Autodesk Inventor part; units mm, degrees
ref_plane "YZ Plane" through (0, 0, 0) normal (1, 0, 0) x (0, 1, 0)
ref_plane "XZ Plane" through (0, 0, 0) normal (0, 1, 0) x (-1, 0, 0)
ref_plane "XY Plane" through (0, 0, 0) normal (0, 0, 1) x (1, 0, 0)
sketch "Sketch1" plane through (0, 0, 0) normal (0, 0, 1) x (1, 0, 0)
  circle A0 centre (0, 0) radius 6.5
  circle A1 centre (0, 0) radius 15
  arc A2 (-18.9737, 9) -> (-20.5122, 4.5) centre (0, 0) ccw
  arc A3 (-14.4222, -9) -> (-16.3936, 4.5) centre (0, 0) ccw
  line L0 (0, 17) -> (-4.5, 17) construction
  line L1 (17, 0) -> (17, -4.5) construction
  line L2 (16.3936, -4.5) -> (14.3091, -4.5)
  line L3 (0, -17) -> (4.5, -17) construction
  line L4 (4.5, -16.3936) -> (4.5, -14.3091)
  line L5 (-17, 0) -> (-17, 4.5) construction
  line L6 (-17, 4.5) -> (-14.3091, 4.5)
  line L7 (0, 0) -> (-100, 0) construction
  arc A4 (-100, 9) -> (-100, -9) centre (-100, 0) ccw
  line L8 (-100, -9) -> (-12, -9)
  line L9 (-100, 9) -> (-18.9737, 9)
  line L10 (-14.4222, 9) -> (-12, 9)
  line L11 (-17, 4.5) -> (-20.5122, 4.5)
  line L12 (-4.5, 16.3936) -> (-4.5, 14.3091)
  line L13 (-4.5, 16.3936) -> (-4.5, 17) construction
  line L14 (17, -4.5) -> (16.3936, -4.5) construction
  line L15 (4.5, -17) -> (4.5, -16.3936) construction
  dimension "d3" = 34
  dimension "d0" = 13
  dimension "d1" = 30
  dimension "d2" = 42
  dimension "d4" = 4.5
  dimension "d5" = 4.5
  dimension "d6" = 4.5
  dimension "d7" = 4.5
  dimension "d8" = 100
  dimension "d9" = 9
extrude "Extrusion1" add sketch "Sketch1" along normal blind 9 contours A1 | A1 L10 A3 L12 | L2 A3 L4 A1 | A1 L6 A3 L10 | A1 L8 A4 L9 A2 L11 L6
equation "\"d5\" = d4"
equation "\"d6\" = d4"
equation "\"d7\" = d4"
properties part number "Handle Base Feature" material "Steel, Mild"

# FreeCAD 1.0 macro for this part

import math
import FreeCAD as App
import Part
import Sketcher
from FreeCAD import Vector

doc = App.newDocument("Part")
body = doc.addObject("PartDesign::Body", "Body")

sketch1 = body.newObject("Sketcher::SketchObject", "Sketch")
sketch1.AttachmentSupport = (doc.getObject("XY_Plane"), [""])
sketch1.MapMode = "FlatFace"
sketch1.addGeometry([
    Part.ArcOfCircle(Part.Circle(Vector(0, 0, 0), Vector(0, 0, 1), 15), math.radians(-17.457589), math.radians(107.457589)),
    Part.LineSegment(Vector(-4.5, 14.3091, 0), Vector(-4.5, 16.3936, 0)),
    Part.ArcOfCircle(Part.Circle(Vector(0, 0, 0), Vector(0, 0, 1), 16.999996), math.radians(105.349474), math.radians(164.650526)),
    Part.LineSegment(Vector(-16.3936, 4.5, 0), Vector(-20.5122, 4.5, 0)),
    Part.ArcOfCircle(Part.Circle(Vector(-0.001619, 0.000658, 0), Vector(0, 0, 1), 20.998286), math.radians(154.622836), math.radians(167.627188)),
    Part.LineSegment(Vector(-18.9737, 9, 0), Vector(-100, 9, 0)),
    Part.ArcOfCircle(Part.Circle(Vector(-100, 0, 0), Vector(0, 0, 1), 9), math.radians(90), math.radians(270)),
    Part.LineSegment(Vector(-100, -9, 0), Vector(-12, -9, 0)),
    Part.ArcOfCircle(Part.Circle(Vector(0, 0, 0), Vector(0, 0, 1), 15), math.radians(-143.130102), math.radians(-72.542411)),
    Part.LineSegment(Vector(4.5, -14.3091, 0), Vector(4.5, -16.3936, 0)),
    Part.ArcOfCircle(Part.Circle(Vector(0, 0, 0), Vector(0, 0, 1), 16.999996), math.radians(-74.650526), math.radians(-15.349474)),
    Part.LineSegment(Vector(16.3936, -4.5, 0), Vector(14.3091, -4.5, 0)),
    Part.Circle(Vector(0, 0, 0), Vector(0, 0, 1), 6.5),
], False)
sketch1.addConstraint([
    Sketcher.Constraint("Coincident", 0, 2, 1, 1),
    Sketcher.Constraint("Coincident", 1, 2, 2, 1),
    Sketcher.Constraint("Coincident", 2, 2, 3, 1),
    Sketcher.Constraint("Coincident", 3, 2, 4, 2),
    Sketcher.Constraint("Coincident", 4, 1, 5, 1),
    Sketcher.Constraint("Tangent", 5, 2, 6, 1),
    Sketcher.Constraint("Tangent", 6, 2, 7, 1),
    Sketcher.Constraint("Coincident", 7, 2, 8, 1),
    Sketcher.Constraint("Coincident", 8, 2, 9, 1),
    Sketcher.Constraint("Coincident", 9, 2, 10, 1),
    Sketcher.Constraint("Coincident", 10, 2, 11, 1),
    Sketcher.Constraint("Coincident", 11, 2, 0, 1),
    Sketcher.Constraint("Vertical", 1),
    Sketcher.Constraint("Horizontal", 3),
    Sketcher.Constraint("Horizontal", 5),
    Sketcher.Constraint("Horizontal", 7),
    Sketcher.Constraint("Vertical", 9),
    Sketcher.Constraint("Horizontal", 11),
    Sketcher.Constraint("Coincident", 0, 3, -1, 1),
    Sketcher.Constraint("Coincident", 2, 3, -1, 1),
    Sketcher.Constraint("Coincident", 8, 3, -1, 1),
    Sketcher.Constraint("Coincident", 10, 3, -1, 1),
    Sketcher.Constraint("Coincident", 12, 3, -1, 1),
    Sketcher.Constraint("Equal", 0, 8),
    Sketcher.Constraint("Equal", 2, 10),
    Sketcher.Constraint("PointOnObject", 6, 3, -1),
    Sketcher.Constraint("Equal", 11, 1),
    Sketcher.Constraint("Equal", 1, 9),
    Sketcher.Constraint("Diameter", 12, 13.0),
    Sketcher.Constraint("Radius", 0, 15.0),
    Sketcher.Constraint("Radius", 2, 17.0),
    Sketcher.Constraint("Radius", 6, 9.0),
    Sketcher.Constraint("DistanceX", 6, 3, -1, 1, 100.0),
    Sketcher.Constraint("DistanceX", 0, 2, -1, 1, 4.5),
    Sketcher.Constraint("DistanceY", -1, 1, 2, 2, 4.5),
    Sketcher.Constraint("Radius", 4, 20.9983),
    Sketcher.Constraint("DistanceX", 4, 1, 2, 2, 2.58),
    Sketcher.Constraint("DistanceX", 3, 2, 3, 1, 4.1186),
])
pad1 = body.newObject("PartDesign::Pad", "Pad")
pad1.Profile = sketch1
pad1.Length = 9

doc.recompute()
